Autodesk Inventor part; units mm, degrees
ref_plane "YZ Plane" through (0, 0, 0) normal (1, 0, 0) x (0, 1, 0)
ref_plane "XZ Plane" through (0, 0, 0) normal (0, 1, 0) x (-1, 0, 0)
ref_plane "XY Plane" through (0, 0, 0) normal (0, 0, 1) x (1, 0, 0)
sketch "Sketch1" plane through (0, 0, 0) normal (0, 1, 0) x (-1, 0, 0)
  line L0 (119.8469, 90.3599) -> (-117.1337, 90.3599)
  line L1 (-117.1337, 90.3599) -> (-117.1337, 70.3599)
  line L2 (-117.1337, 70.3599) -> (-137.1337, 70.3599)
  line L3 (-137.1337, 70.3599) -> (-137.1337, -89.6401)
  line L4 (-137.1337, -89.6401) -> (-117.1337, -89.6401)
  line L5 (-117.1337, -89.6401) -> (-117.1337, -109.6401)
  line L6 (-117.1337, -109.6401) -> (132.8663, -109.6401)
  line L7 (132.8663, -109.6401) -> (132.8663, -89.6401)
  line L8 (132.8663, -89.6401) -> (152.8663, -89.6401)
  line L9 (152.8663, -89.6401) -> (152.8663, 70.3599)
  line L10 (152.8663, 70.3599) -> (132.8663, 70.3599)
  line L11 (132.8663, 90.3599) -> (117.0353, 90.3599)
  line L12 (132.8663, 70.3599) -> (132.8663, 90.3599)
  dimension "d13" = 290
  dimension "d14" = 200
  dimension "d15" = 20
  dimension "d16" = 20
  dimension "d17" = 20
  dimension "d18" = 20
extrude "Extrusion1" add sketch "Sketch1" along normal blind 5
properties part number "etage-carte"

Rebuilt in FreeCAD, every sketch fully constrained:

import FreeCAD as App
import Part
import Sketcher
Q = App.Units.Quantity

doc = App.newDocument("Part")
body = doc.addObject("PartDesign::Body", "Body")

sketch1 = body.newObject("Sketcher::SketchObject", "Sketch")
sketch1.AttachmentSupport = (doc.getObject("XZ_Plane"), [""])
sketch1.MapMode = "FlatFace"
sketch1.addGeometry(Part.LineSegment(App.Vector(-132.8663, 90.3599, 0), App.Vector(117.1337, 90.3599, 0)), False)
sketch1.addGeometry(Part.LineSegment(App.Vector(117.1337, 90.3599, 0), App.Vector(117.1337, 70.3599, 0)), False)
sketch1.addGeometry(Part.LineSegment(App.Vector(117.1337, 70.3599, 0), App.Vector(137.1337, 70.3599, 0)), False)
sketch1.addGeometry(Part.LineSegment(App.Vector(137.1337, 70.3599, 0), App.Vector(137.1337, -89.6401, 0)), False)
sketch1.addGeometry(Part.LineSegment(App.Vector(137.1337, -89.6401, 0), App.Vector(117.1337, -89.6401, 0)), False)
sketch1.addGeometry(Part.LineSegment(App.Vector(117.1337, -89.6401, 0), App.Vector(117.1337, -109.6401, 0)), False)
sketch1.addGeometry(Part.LineSegment(App.Vector(117.1337, -109.6401, 0), App.Vector(-132.8663, -109.6401, 0)), False)
sketch1.addGeometry(Part.LineSegment(App.Vector(-132.8663, -109.6401, 0), App.Vector(-132.8663, -89.6401, 0)), False)
sketch1.addGeometry(Part.LineSegment(App.Vector(-132.8663, -89.6401, 0), App.Vector(-152.8663, -89.6401, 0)), False)
sketch1.addGeometry(Part.LineSegment(App.Vector(-152.8663, -89.6401, 0), App.Vector(-152.8663, 70.3599, 0)), False)
sketch1.addGeometry(Part.LineSegment(App.Vector(-152.8663, 70.3599, 0), App.Vector(-132.8663, 70.3599, 0)), False)
sketch1.addGeometry(Part.LineSegment(App.Vector(-132.8663, 70.3599, 0), App.Vector(-132.8663, 90.3599, 0)), False)
sketch1.addConstraint(Sketcher.Constraint("Coincident", 0, 2, 1, 1))
sketch1.addConstraint(Sketcher.Constraint("Coincident", 1, 2, 2, 1))
sketch1.addConstraint(Sketcher.Constraint("Coincident", 2, 2, 3, 1))
sketch1.addConstraint(Sketcher.Constraint("Coincident", 3, 2, 4, 1))
sketch1.addConstraint(Sketcher.Constraint("Coincident", 4, 2, 5, 1))
sketch1.addConstraint(Sketcher.Constraint("Coincident", 5, 2, 6, 1))
sketch1.addConstraint(Sketcher.Constraint("Coincident", 6, 2, 7, 1))
sketch1.addConstraint(Sketcher.Constraint("Coincident", 7, 2, 8, 1))
sketch1.addConstraint(Sketcher.Constraint("Coincident", 8, 2, 9, 1))
sketch1.addConstraint(Sketcher.Constraint("Coincident", 9, 2, 10, 1))
sketch1.addConstraint(Sketcher.Constraint("Coincident", 10, 2, 11, 1))
sketch1.addConstraint(Sketcher.Constraint("Coincident", 11, 2, 0, 1))
sketch1.addConstraint(Sketcher.Constraint("Horizontal", 0))
sketch1.addConstraint(Sketcher.Constraint("Vertical", 1))
sketch1.addConstraint(Sketcher.Constraint("Horizontal", 2))
sketch1.addConstraint(Sketcher.Constraint("Vertical", 3))
sketch1.addConstraint(Sketcher.Constraint("Horizontal", 4))
sketch1.addConstraint(Sketcher.Constraint("Vertical", 5))
sketch1.addConstraint(Sketcher.Constraint("Horizontal", 6))
sketch1.addConstraint(Sketcher.Constraint("Vertical", 7))
sketch1.addConstraint(Sketcher.Constraint("Horizontal", 8))
sketch1.addConstraint(Sketcher.Constraint("Vertical", 9))
sketch1.addConstraint(Sketcher.Constraint("Horizontal", 10))
sketch1.addConstraint(Sketcher.Constraint("Vertical", 11))
sketch1.addConstraint(Sketcher.Constraint("Horizontal", 4, 2, 7, 2))
sketch1.addConstraint(Sketcher.Constraint("Horizontal", 2, 2, 9, 2))
sketch1.addConstraint(Sketcher.Constraint("Vertical", 1, 2, 4, 2))
sketch1.addConstraint(Sketcher.Constraint("Vertical", 7, 2, 10, 2))
sketch1.addConstraint(Sketcher.Constraint("Equal", 4, 8))
sketch1.addConstraint(Sketcher.Constraint("Equal", 10, 1))
sketch1.addConstraint(Sketcher.Constraint("Equal", 1, 5))
sketch1.addConstraint(Sketcher.Constraint("DistanceX", 2, 1, 2, 2, Q("20 mm")))
sketch1.addConstraint(Sketcher.Constraint("DistanceY", 5, 2, 0, 2, Q("200 mm")))
sketch1.addConstraint(Sketcher.Constraint("DistanceX", 8, 2, 3, 2, Q("290 mm")))
sketch1.addConstraint(Sketcher.Constraint("DistanceY", -1, 1, 0, 2, Q("90.36 mm")))
sketch1.addConstraint(Sketcher.Constraint("DistanceX", -1, 1, 0, 2, Q("117.1337 mm")))
pad1 = body.newObject("PartDesign::Pad", "Pad")
pad1.Profile = sketch1
pad1.Length = 5
pad1.Reversed = True

doc.recompute()
